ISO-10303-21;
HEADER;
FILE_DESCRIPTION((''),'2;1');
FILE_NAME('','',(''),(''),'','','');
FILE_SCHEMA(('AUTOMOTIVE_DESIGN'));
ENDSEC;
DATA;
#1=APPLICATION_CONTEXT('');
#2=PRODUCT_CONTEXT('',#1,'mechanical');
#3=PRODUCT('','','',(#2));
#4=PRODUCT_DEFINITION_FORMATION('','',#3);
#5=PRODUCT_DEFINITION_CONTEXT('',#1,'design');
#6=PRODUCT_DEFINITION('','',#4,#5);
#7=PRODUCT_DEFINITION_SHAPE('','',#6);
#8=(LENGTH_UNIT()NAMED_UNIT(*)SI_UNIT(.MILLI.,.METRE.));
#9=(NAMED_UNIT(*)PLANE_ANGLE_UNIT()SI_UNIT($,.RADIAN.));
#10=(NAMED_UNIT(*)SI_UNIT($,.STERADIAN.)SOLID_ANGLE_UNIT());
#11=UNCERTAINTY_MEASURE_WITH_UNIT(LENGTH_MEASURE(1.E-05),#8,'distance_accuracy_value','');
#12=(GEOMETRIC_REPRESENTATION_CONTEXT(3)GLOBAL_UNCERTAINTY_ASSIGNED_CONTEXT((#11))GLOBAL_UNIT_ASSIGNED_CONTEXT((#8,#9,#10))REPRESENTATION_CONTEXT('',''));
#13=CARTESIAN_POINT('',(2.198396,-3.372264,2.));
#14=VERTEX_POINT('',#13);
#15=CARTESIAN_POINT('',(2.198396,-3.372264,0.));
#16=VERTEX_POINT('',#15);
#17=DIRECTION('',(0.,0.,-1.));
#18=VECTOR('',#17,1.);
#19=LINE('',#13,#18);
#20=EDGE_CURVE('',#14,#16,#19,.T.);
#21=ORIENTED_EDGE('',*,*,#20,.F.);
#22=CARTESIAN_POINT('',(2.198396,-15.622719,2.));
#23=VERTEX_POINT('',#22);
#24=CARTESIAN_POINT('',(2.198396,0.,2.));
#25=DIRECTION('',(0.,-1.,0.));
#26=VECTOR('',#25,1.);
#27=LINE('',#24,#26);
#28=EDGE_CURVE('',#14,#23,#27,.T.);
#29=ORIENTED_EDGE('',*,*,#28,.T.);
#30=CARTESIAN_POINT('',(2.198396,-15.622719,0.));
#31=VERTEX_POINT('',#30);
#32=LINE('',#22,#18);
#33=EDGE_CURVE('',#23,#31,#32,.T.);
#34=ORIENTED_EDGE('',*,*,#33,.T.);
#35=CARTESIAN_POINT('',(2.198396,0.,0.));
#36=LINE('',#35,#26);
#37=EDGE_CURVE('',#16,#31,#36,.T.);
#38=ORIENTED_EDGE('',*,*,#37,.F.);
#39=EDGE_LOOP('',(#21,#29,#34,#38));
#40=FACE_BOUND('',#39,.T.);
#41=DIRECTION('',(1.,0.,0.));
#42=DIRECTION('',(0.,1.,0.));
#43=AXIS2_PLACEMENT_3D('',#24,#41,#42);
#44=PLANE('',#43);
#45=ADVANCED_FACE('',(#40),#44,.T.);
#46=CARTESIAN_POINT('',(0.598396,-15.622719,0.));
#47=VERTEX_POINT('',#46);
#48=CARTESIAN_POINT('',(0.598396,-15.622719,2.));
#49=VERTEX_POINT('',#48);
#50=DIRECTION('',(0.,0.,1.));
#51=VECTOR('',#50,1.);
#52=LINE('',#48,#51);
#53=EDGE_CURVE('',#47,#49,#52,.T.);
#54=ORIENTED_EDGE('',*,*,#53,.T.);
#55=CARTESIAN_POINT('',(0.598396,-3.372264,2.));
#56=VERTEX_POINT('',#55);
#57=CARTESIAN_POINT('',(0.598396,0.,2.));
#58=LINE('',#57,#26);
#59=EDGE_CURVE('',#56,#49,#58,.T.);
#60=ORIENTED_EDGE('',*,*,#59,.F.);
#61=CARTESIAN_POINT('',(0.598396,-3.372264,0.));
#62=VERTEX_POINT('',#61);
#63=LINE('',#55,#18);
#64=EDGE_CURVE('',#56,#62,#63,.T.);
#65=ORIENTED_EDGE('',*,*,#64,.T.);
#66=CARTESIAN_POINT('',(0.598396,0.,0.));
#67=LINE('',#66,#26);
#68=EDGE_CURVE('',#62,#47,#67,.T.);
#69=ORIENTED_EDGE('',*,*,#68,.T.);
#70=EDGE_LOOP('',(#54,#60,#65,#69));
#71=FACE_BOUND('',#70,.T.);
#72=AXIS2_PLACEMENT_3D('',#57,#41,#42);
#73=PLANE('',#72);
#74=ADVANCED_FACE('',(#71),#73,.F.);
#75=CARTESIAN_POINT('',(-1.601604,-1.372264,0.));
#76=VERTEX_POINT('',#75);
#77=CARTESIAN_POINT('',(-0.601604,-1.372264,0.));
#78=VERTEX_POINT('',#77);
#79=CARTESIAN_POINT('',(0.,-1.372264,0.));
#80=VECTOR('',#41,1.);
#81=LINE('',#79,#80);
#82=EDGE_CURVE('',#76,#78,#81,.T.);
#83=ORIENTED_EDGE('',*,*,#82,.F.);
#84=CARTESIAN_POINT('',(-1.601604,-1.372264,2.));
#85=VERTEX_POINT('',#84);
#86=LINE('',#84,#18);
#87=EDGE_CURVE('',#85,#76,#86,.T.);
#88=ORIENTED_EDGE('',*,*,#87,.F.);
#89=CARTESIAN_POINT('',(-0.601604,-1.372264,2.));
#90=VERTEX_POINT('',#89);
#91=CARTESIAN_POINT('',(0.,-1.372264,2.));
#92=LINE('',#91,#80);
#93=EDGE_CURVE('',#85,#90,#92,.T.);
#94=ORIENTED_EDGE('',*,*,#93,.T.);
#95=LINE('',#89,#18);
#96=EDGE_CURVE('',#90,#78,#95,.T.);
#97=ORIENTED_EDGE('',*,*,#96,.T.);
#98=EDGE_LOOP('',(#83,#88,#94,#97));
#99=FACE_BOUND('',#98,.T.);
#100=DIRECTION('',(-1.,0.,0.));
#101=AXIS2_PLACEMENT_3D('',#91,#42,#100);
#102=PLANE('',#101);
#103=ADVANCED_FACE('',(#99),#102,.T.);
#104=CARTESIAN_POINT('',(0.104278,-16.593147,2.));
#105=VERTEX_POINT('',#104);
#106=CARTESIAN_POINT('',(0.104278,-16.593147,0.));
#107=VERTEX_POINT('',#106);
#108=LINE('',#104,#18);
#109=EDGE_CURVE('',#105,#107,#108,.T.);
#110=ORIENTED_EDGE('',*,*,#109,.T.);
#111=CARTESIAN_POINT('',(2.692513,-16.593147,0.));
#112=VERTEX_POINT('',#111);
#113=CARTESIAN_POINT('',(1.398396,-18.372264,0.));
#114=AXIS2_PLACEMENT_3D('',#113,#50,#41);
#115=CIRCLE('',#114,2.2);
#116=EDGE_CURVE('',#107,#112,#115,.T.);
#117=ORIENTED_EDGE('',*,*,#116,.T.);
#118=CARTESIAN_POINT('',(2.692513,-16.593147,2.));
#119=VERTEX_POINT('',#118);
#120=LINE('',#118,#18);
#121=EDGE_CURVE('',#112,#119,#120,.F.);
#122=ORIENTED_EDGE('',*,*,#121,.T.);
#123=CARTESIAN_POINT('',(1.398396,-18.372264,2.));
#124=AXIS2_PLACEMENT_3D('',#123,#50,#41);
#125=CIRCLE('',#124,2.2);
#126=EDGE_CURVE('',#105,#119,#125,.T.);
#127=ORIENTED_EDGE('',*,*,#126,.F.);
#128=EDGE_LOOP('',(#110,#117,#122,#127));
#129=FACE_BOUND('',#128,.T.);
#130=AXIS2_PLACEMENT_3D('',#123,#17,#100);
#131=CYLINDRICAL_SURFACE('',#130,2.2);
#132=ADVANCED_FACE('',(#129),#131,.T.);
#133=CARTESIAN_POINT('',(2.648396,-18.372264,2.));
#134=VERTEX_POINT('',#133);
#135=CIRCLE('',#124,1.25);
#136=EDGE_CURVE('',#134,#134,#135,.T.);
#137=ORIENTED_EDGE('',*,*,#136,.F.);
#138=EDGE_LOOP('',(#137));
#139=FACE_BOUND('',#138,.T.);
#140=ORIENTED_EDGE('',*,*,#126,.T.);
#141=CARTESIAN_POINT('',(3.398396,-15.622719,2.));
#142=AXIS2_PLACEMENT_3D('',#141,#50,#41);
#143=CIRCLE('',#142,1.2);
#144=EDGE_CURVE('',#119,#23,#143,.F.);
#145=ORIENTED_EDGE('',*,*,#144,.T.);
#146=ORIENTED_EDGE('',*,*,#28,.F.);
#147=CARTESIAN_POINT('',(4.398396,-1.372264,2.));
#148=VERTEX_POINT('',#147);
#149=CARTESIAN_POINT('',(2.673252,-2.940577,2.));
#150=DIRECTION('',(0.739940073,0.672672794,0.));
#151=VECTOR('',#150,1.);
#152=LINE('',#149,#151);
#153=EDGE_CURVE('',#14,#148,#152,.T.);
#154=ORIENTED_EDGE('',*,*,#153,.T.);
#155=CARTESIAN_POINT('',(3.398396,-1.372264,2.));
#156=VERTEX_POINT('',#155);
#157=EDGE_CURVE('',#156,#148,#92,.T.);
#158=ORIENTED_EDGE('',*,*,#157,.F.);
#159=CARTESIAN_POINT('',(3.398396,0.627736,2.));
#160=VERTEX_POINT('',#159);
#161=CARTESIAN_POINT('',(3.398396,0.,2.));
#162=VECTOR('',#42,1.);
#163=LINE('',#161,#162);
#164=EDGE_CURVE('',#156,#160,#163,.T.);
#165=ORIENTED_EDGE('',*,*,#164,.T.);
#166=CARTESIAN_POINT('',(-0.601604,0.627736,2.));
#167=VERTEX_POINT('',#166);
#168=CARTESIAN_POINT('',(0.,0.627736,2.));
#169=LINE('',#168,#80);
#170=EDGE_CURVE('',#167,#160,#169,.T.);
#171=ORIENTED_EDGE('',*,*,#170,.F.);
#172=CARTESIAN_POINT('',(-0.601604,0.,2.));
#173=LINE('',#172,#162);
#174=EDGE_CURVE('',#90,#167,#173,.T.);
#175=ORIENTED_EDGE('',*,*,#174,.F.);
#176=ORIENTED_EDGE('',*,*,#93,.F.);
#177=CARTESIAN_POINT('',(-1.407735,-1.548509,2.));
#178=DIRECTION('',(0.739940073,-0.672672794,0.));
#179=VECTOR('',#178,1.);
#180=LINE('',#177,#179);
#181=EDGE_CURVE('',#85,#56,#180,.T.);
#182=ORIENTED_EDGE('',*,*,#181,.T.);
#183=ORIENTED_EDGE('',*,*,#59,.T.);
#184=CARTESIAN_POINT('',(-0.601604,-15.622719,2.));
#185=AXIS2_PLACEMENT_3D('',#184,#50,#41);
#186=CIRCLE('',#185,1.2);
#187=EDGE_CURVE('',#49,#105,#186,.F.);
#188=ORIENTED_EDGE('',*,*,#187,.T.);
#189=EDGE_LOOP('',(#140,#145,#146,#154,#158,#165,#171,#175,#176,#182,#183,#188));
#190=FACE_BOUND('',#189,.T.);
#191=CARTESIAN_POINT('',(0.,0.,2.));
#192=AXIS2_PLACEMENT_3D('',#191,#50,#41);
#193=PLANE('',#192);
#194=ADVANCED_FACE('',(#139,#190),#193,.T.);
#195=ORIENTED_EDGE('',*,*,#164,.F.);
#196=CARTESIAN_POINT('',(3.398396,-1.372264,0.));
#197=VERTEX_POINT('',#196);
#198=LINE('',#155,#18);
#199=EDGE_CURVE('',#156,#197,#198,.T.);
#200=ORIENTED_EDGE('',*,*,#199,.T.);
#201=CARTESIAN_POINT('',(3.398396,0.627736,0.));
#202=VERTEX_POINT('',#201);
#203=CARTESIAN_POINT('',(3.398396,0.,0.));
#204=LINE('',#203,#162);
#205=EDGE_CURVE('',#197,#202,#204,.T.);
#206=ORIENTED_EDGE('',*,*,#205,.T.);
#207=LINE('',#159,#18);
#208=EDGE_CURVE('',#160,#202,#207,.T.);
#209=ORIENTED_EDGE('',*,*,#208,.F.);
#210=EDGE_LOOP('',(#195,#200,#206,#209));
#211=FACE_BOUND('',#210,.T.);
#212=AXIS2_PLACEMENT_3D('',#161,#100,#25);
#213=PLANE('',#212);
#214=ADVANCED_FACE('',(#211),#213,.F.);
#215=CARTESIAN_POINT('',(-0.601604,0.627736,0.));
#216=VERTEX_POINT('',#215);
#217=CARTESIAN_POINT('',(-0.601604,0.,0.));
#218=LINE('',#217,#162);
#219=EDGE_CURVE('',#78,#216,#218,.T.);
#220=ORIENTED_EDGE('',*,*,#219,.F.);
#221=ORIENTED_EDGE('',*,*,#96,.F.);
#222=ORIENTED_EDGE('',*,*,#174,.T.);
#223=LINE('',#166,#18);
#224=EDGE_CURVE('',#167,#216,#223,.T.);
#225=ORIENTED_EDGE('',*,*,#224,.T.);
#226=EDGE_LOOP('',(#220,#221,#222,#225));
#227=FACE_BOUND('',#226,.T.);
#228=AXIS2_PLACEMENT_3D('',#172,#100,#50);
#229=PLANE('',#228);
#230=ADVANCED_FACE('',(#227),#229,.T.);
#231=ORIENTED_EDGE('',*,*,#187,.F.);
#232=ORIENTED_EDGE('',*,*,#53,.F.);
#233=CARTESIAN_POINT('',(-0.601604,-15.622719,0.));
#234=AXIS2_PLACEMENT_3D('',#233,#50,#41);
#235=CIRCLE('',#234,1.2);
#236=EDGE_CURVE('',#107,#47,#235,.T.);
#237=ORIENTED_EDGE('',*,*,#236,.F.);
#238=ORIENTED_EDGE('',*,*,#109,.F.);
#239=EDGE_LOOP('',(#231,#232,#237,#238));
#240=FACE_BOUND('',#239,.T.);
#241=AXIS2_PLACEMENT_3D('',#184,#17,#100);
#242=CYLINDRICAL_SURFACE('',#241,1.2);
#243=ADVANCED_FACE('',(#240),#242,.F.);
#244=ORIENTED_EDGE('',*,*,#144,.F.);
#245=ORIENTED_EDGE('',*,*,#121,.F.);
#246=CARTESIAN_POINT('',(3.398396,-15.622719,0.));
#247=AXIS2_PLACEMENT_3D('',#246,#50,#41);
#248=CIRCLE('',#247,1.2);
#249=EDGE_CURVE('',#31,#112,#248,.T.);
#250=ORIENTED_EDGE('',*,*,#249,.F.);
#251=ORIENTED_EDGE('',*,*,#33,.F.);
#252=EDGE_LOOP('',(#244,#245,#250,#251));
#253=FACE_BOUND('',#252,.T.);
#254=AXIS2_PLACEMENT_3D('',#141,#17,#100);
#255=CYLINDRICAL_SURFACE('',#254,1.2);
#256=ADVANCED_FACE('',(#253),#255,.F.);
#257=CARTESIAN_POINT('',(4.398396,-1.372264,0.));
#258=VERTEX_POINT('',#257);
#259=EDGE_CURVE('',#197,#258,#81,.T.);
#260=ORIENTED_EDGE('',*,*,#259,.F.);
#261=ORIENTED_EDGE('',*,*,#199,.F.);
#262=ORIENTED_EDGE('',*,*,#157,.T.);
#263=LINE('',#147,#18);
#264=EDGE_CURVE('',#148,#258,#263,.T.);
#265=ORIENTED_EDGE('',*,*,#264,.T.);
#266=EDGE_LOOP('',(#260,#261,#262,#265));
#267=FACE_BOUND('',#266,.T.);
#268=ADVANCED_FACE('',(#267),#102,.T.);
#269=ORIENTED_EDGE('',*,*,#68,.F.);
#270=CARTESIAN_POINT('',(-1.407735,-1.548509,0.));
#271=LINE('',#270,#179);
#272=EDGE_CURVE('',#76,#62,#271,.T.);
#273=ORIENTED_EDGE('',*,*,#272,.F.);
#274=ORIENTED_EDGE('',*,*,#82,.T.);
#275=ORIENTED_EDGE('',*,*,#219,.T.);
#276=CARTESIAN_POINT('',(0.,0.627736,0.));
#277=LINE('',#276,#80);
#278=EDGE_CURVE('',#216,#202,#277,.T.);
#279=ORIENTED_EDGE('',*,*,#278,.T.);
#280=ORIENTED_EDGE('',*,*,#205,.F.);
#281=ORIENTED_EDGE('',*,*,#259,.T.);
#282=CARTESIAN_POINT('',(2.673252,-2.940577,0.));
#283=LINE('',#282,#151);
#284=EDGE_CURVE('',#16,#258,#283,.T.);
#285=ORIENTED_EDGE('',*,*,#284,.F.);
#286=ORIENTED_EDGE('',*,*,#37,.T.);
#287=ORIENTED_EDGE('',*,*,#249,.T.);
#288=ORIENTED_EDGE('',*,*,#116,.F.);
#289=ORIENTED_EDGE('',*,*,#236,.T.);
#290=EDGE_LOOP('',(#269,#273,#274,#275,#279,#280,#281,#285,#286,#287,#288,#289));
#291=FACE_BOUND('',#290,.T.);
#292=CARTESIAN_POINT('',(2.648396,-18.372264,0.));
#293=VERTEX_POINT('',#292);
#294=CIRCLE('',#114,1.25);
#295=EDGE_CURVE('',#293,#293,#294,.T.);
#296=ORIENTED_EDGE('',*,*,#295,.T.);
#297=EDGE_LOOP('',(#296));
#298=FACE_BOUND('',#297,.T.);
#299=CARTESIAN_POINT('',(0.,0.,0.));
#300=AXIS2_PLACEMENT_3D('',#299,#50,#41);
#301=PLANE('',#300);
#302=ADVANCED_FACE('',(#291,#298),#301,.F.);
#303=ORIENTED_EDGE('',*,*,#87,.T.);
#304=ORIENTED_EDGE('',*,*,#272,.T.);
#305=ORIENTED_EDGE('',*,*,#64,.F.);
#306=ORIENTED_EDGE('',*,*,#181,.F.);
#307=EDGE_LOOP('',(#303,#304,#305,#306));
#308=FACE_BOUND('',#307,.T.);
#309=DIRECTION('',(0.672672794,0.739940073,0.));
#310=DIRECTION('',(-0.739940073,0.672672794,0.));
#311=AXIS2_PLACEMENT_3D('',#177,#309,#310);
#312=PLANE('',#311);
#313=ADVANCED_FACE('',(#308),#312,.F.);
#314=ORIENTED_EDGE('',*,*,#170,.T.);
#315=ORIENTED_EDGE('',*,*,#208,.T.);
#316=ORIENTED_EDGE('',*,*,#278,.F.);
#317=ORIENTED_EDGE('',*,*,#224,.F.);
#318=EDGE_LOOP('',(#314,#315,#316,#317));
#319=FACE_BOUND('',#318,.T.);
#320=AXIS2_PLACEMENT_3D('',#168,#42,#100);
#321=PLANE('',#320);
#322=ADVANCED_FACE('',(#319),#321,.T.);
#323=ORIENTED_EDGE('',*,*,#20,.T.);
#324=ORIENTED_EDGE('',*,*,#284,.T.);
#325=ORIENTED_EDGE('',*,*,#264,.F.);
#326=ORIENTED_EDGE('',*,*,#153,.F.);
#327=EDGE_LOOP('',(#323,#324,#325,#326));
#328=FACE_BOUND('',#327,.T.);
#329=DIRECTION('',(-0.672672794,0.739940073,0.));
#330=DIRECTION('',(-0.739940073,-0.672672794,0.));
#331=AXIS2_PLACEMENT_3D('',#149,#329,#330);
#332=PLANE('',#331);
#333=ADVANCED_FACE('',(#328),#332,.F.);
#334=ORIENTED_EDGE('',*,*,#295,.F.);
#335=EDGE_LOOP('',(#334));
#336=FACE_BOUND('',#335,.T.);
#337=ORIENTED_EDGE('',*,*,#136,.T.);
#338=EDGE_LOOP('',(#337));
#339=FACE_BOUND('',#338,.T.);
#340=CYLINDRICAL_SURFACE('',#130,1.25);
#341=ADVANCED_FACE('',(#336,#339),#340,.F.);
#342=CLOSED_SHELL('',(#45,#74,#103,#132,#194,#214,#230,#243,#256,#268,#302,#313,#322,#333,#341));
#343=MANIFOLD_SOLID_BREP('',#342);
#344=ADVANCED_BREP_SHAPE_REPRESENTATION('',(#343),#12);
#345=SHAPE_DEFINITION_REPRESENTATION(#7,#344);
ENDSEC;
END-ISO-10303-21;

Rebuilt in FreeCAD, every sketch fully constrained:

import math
import FreeCAD as App
import Part
import Sketcher
Q = App.Units.Quantity


def edges_at(feature, points):
    """Names of the edges that pass closest to the given points."""
    edges = feature.Shape.Edges
    near = lambda p: min(range(len(edges)), key=lambda i: edges[i].distToShape(Part.Vertex(*p))[0])
    return sorted({f"Edge{near(p) + 1}" for p in points})

doc = App.newDocument("Part")
body = doc.addObject("PartDesign::Body", "Body")

# Sketch on XY plane
sketch1 = doc.addObject("Sketcher::SketchObject", "Sketch")
body.addObject(sketch1)
sketch1.AttachmentSupport = (doc.XY_Plane, [""])
sketch1.MapMode = "FlatFace"
sketch1.addGeometry(Part.LineSegment(App.Vector(-0.6, -1.4, 0), App.Vector(-1.6, -1.4, 0)), False)
sketch1.addGeometry(Part.LineSegment(App.Vector(-1.6, -1.4, 0), App.Vector(0.6, -3.4, 0)), False)
sketch1.addGeometry(Part.LineSegment(App.Vector(0.6, -3.4, 0), App.Vector(0.6, -16.3, 0)), False)
sketch1.addGeometry(Part.ArcOfCircle(Part.Circle(App.Vector(1.4, -18.4, 0), App.Vector(0, 0, 1), 2.2), math.radians(111), math.radians(360)), False)
sketch1.addGeometry(Part.ArcOfCircle(Part.Circle(App.Vector(1.4, -18.4, 0), App.Vector(0, 0, 1), 2.2), math.radians(0), math.radians(69)), False)
sketch1.addGeometry(Part.LineSegment(App.Vector(2.2, -16.3, 0), App.Vector(2.2, -3.4, 0)), False)
sketch1.addGeometry(Part.LineSegment(App.Vector(2.2, -3.4, 0), App.Vector(4.4, -1.4, 0)), False)
sketch1.addGeometry(Part.LineSegment(App.Vector(4.4, -1.4, 0), App.Vector(3.4, -1.4, 0)), False)
sketch1.addGeometry(Part.LineSegment(App.Vector(3.4, -1.4, 0), App.Vector(3.4, 0.6, 0)), False)
sketch1.addGeometry(Part.LineSegment(App.Vector(3.4, 0.6, 0), App.Vector(-0.6, 0.6, 0)), False)
sketch1.addGeometry(Part.LineSegment(App.Vector(-0.6, 0.6, 0), App.Vector(-0.6, -1.4, 0)), False)
sketch1.addGeometry(Part.ArcOfCircle(Part.Circle(App.Vector(1.4, -18.4, 0), App.Vector(0, 0, 1), 1.3), math.radians(50), math.radians(130)), False)
sketch1.addGeometry(Part.ArcOfCircle(Part.Circle(App.Vector(1.4, -18.4, 0), App.Vector(0, 0, 1), 1.3), math.radians(0), math.radians(50)), False)
sketch1.addGeometry(Part.ArcOfCircle(Part.Circle(App.Vector(1.4, -18.4, 0), App.Vector(0, 0, 1), 1.2), math.radians(130), math.radians(360)), False)
sketch1.addConstraint(Sketcher.Constraint("Coincident", 0, 2, 1, 1))
sketch1.addConstraint(Sketcher.Constraint("Coincident", 1, 2, 2, 1))
sketch1.addConstraint(Sketcher.Constraint("Coincident", 2, 2, 3, 1))
sketch1.addConstraint(Sketcher.Constraint("Tangent", 3, 2, 4, 1))
sketch1.addConstraint(Sketcher.Constraint("Coincident", 4, 2, 5, 1))
sketch1.addConstraint(Sketcher.Constraint("Coincident", 5, 2, 6, 1))
sketch1.addConstraint(Sketcher.Constraint("Coincident", 6, 2, 7, 1))
sketch1.addConstraint(Sketcher.Constraint("Coincident", 7, 2, 8, 1))
sketch1.addConstraint(Sketcher.Constraint("Coincident", 8, 2, 9, 1))
sketch1.addConstraint(Sketcher.Constraint("Coincident", 9, 2, 10, 1))
sketch1.addConstraint(Sketcher.Constraint("Coincident", 10, 2, 0, 1))
sketch1.addConstraint(Sketcher.Constraint("Tangent", 11, 1, 12, 2))
sketch1.addConstraint(Sketcher.Constraint("Tangent", 12, 1, 13, 2))
sketch1.addConstraint(Sketcher.Constraint("Tangent", 13, 1, 11, 2))
sketch1.addConstraint(Sketcher.Constraint("Horizontal", 0))
sketch1.addConstraint(Sketcher.Constraint("Vertical", 2))
sketch1.addConstraint(Sketcher.Constraint("Vertical", 5))
sketch1.addConstraint(Sketcher.Constraint("Horizontal", 7))
sketch1.addConstraint(Sketcher.Constraint("Vertical", 8))
sketch1.addConstraint(Sketcher.Constraint("Horizontal", 9))
sketch1.addConstraint(Sketcher.Constraint("Vertical", 10))
sketch1.addConstraint(Sketcher.Constraint("Coincident", 11, 3, 3, 3))
sketch1.addConstraint(Sketcher.Constraint("Equal", 3, 4))
sketch1.addConstraint(Sketcher.Constraint("Horizontal", 13, 3, 3, 2))
sketch1.addConstraint(Sketcher.Constraint("Horizontal", 2, 2, 4, 2))
sketch1.addConstraint(Sketcher.Constraint("Horizontal", 1, 2, 5, 2))
sketch1.addConstraint(Sketcher.Constraint("Horizontal", 0, 2, 6, 2))
sketch1.addConstraint(Sketcher.Constraint("Horizontal", 3, 2, 12, 1))
sketch1.addConstraint(Sketcher.Constraint("Horizontal", 11, 1, 13, 1))
sketch1.addConstraint(Sketcher.Constraint("Vertical", 5, 2, 11, 1))
sketch1.addConstraint(Sketcher.Constraint("Equal", 0, 7))
sketch1.addConstraint(Sketcher.Constraint("Equal", 1, 6))
sketch1.addConstraint(Sketcher.Constraint("Radius", 3, Q("2.2 mm")))
sketch1.addConstraint(Sketcher.Constraint("DistanceX", 0, 2, 0, 1, Q("1 mm")))
sketch1.addConstraint(Sketcher.Constraint("DistanceX", 9, 2, 9, 1, Q("4 mm")))
sketch1.addConstraint(Sketcher.Constraint("DistanceY", 8, 1, 8, 2, Q("2 mm")))
sketch1.addConstraint(Sketcher.Constraint("Radius", 11, Q("1.25 mm")))
sketch1.addConstraint(Sketcher.Constraint("DistanceY", 3, 3, 0, 2, Q("17 mm")))
sketch1.addConstraint(Sketcher.Constraint("DistanceY", 1, 2, 0, 2, Q("2 mm")))
sketch1.addConstraint(Sketcher.Constraint("DistanceX", 0, 2, 1, 2, Q("2.2 mm")))
sketch1.addConstraint(Sketcher.Constraint("DistanceX", -1, 1, 3, 3, Q("1.398396 mm")))
sketch1.addConstraint(Sketcher.Constraint("DistanceY", 3, 3, -1, 1, Q("18.372264 mm")))
pad1 = doc.addObject("PartDesign::Pad", "Pad")
body.addObject(pad1)
pad1.Profile = sketch1
pad1.Length = 2
doc.recompute()

fillet = doc.addObject("PartDesign::Fillet", "Fillet")
body.addObject(fillet)
fillet.Base = (pad1, edges_at(pad1, [(2.198, -16.323, 1), (0.598, -16.323, 1)]))
fillet.Radius = 1.2

doc.recompute()
